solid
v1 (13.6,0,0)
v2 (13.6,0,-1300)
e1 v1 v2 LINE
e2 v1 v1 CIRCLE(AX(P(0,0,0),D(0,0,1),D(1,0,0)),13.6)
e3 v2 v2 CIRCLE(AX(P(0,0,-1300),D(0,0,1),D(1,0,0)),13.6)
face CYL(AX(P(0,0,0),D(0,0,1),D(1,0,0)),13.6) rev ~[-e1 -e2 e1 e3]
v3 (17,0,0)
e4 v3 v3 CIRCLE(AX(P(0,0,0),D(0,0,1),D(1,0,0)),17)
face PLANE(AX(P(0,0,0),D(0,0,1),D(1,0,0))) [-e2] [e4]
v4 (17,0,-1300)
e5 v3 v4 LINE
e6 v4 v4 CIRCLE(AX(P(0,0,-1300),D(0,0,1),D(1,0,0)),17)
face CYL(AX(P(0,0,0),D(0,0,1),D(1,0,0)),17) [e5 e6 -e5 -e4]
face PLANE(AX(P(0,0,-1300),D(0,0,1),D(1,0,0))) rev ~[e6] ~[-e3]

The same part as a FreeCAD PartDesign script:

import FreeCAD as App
import Part
import Sketcher

doc = App.newDocument("Part")
body = doc.addObject("PartDesign::Body", "Body")

# Sketch on XY plane
sketch1 = doc.addObject("Sketcher::SketchObject", "Sketch")
body.addObject(sketch1)
sketch1.AttachmentSupport = (doc.XY_Plane, [""])
sketch1.MapMode = "FlatFace"
sketch1.addGeometry([
    Part.Circle(App.Vector(0, 0, 0), App.Vector(0, 0, 1), 17),
    Part.Circle(App.Vector(0, 0, 0), App.Vector(0, 0, 1), 14),
], False)
sketch1.addConstraint([
    Sketcher.Constraint("Coincident", 0, 3, -1, 1),
    Sketcher.Constraint("Coincident", 1, 3, -1, 1),
    Sketcher.Constraint("Diameter", 0, 34.0),
    Sketcher.Constraint("Diameter", 1, 27.2),
])
pad1 = doc.addObject("PartDesign::Pad", "Pad")
body.addObject(pad1)
pad1.Profile = sketch1
pad1.Length = 1300
pad1.Reversed = True

doc.recompute()
